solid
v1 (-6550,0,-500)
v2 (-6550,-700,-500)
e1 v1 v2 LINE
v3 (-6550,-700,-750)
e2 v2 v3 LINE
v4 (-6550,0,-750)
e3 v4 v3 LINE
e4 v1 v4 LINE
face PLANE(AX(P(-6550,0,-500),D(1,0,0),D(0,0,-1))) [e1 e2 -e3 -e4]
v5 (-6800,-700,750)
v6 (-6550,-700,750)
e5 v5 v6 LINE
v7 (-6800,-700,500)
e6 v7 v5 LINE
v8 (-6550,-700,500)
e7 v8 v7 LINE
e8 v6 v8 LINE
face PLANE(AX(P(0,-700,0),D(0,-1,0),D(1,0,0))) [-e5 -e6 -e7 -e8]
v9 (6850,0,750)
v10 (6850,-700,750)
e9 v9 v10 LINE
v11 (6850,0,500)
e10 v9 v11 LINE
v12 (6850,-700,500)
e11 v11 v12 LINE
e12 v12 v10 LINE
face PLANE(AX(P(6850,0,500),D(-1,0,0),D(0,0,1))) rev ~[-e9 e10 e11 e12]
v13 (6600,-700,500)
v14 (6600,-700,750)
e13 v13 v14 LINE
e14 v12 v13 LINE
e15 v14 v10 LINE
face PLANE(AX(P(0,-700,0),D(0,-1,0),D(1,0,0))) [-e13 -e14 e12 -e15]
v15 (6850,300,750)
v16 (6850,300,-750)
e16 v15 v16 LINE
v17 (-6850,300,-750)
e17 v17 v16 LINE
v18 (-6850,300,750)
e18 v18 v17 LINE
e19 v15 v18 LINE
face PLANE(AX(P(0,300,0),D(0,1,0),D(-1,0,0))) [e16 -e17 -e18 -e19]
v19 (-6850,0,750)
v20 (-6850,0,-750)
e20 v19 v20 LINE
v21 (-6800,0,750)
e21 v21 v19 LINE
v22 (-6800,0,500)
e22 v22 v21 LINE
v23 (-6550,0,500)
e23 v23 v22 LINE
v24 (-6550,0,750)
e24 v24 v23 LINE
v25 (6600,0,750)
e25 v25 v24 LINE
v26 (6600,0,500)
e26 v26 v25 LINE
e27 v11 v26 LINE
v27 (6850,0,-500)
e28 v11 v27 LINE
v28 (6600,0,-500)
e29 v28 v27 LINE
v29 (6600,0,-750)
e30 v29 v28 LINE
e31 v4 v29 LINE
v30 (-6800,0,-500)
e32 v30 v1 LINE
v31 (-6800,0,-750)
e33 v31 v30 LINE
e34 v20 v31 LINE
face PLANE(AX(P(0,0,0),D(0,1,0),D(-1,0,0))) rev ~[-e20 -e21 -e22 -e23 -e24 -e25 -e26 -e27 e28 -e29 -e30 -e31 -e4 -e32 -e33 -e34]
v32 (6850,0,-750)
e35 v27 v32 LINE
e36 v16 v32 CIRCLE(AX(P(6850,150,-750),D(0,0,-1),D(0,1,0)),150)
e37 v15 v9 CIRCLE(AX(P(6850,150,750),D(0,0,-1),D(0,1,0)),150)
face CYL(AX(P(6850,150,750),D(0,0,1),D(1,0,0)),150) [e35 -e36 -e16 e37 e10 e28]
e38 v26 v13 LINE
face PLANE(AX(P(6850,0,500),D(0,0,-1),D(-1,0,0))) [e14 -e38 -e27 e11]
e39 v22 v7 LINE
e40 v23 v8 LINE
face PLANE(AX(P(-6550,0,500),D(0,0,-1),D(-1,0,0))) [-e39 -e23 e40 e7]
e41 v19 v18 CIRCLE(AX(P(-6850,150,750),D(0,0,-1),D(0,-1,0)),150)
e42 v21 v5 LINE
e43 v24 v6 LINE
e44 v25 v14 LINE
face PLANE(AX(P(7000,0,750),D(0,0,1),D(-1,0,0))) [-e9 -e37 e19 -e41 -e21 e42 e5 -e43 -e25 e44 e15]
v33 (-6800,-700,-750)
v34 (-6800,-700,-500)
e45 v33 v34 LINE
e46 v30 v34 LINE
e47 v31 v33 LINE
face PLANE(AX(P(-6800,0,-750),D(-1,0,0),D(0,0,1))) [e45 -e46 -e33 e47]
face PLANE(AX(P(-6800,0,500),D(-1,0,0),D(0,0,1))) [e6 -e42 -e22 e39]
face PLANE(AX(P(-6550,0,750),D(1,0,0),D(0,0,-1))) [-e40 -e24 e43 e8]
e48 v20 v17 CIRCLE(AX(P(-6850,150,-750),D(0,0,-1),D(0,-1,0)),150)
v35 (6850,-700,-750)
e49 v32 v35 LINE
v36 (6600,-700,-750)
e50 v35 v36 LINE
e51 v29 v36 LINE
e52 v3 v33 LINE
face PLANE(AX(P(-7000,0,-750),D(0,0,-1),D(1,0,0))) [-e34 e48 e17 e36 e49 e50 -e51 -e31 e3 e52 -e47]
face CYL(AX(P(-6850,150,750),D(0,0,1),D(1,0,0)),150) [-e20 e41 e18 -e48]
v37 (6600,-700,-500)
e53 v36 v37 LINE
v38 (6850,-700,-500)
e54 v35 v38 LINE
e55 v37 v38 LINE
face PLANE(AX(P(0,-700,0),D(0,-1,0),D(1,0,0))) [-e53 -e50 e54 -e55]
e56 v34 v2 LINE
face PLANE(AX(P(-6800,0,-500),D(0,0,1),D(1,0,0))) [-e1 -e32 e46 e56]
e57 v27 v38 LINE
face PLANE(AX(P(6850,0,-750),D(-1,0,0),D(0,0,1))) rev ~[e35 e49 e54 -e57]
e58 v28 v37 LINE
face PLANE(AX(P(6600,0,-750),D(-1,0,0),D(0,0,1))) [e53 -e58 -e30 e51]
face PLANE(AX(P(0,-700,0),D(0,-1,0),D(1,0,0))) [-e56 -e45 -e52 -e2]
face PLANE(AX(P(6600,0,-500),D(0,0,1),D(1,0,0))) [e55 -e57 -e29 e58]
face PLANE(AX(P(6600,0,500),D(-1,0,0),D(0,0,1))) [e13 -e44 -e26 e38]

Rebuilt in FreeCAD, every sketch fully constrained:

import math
import FreeCAD as App
import Part
import Sketcher

V = App.Vector
Q = App.Units.Quantity

doc = App.newDocument("Part")
params = doc.addObject("Spreadsheet::Sheet", "Params")
for row, (alias, value) in enumerate([
    ("sketch1_width", "14000 mm"),
    ("sketch1_height", "1500 mm"),
    ("pad1_length", "300 mm"),
    ("sketch2_radius", "150 mm"),
    ("sketch3_width", "250 mm"),
    ("pad2_length", "700 mm"),
], start=1):
    params.set(f"A{row}", alias)
    params.set(f"B{row}", "=" + value)
    params.setAlias(f"B{row}", alias)

body = doc.addObject("PartDesign::Body", "Body")

# Sketch on XZ plane
sketch1 = body.newObject("Sketcher::SketchObject", "Sketch")
sketch1.AttachmentSupport = (doc.getObject("XZ_Plane"), [""])
sketch1.MapMode = "FlatFace"
sketch1.addGeometry([
    Part.LineSegment(V(7000, -750, 0), V(-7000, -750, 0)),
    Part.LineSegment(V(-7000, -750, 0), V(-7000, 750, 0)),
    Part.LineSegment(V(-7000, 750, 0), V(7000, 750, 0)),
    Part.LineSegment(V(7000, 750, 0), V(7000, -750, 0)),
], False)
sketch1.addConstraint([
    Sketcher.Constraint("Coincident", 0, 2, 1, 1),
    Sketcher.Constraint("Coincident", 1, 2, 2, 1),
    Sketcher.Constraint("Coincident", 2, 2, 3, 1),
    Sketcher.Constraint("Coincident", 3, 2, 0, 1),
    Sketcher.Constraint("Horizontal", 0),
    Sketcher.Constraint("Vertical", 1),
    Sketcher.Constraint("Horizontal", 2),
    Sketcher.Constraint("Vertical", 3),
    Sketcher.Constraint("Symmetric", 0, 2, 2, 2, -1, 1),
    Sketcher.Constraint("DistanceX", 0, 2, 0, 1, Q("14000 mm")),
    Sketcher.Constraint("DistanceY", 1, 1, 1, 2, Q("1500 mm")),
])
sketch1.setExpression("Constraints[9]", "Params.sketch1_width")
sketch1.setExpression("Constraints[10]", "Params.sketch1_height")
pad1 = body.newObject("PartDesign::Pad", "Pad")
pad1.Profile = sketch1
pad1.setExpression("Length", "Params.pad1_length")
pad1.Reversed = True

# Sketch on XY plane
sketch2 = body.newObject("Sketcher::SketchObject", "Sketch001")
sketch2.AttachmentSupport = (doc.getObject("XY_Plane"), [""])
sketch2.MapMode = "FlatFace"
sketch2.AttachmentOffset = App.Placement(V(0, 0, 750), App.Rotation())
sketch2.addGeometry([
    Part.LineSegment(V(6850, 0, 0), V(7000, 0, 0)),  # 0
    Part.LineSegment(V(7000, 0, 0), V(7000, 150, 0)),  # 1
    Part.ArcOfCircle(Part.Circle(V(6850, 150, 0), V(0, 0, 1), 150), math.radians(-90), math.radians(0)),  # 2
    Part.ArcOfCircle(Part.Circle(V(6850, 150, 0), V(0, 0, 1), 150), math.radians(0), math.radians(90)),  # 3
    Part.LineSegment(V(7000, 150, 0), V(7000, 300, 0)),  # 4
    Part.LineSegment(V(7000, 300, 0), V(6850, 300, 0)),  # 5
    Part.LineSegment(V(-7000, 0, 0), V(-6850, 0, 0)),  # 6
    Part.ArcOfCircle(Part.Circle(V(-6850, 150, 0), V(0, 0, 1), 150), math.radians(180), math.radians(270)),  # 7
    Part.LineSegment(V(-7000, 150, 0), V(-7000, 0, 0)),  # 8
    Part.ArcOfCircle(Part.Circle(V(-6850, 150, 0), V(0, 0, 1), 150), math.radians(90), math.radians(180)),  # 9
    Part.LineSegment(V(-6850, 300, 0), V(-7000, 300, 0)),  # 10
    Part.LineSegment(V(-7000, 300, 0), V(-7000, 150, 0)),  # 11
], False)
sketch2.addConstraint([
    Sketcher.Constraint("Coincident", 0, 2, 1, 1),
    Sketcher.Constraint("Tangent", 1, 2, 2, 2),
    Sketcher.Constraint("Tangent", 2, 1, 0, 1),
    Sketcher.Constraint("Tangent", 3, 1, 4, 1),
    Sketcher.Constraint("Coincident", 4, 2, 5, 1),
    Sketcher.Constraint("Tangent", 5, 2, 3, 2),
    Sketcher.Constraint("Tangent", 6, 2, 7, 2),
    Sketcher.Constraint("Tangent", 7, 1, 8, 1),
    Sketcher.Constraint("Coincident", 8, 2, 6, 1),
    Sketcher.Constraint("Tangent", 9, 1, 10, 1),
    Sketcher.Constraint("Coincident", 10, 2, 11, 1),
    Sketcher.Constraint("Tangent", 11, 2, 9, 2),
    Sketcher.Constraint("Horizontal", 0),
    Sketcher.Constraint("Vertical", 1),
    Sketcher.Constraint("Vertical", 4),
    Sketcher.Constraint("Horizontal", 5),
    Sketcher.Constraint("Horizontal", 6),
    Sketcher.Constraint("Vertical", 8),
    Sketcher.Constraint("Horizontal", 10),
    Sketcher.Constraint("Vertical", 11),
    Sketcher.Constraint("Coincident", 3, 3, 2, 3),
    Sketcher.Constraint("Coincident", 9, 3, 7, 3),
    Sketcher.Constraint("Equal", 2, 3),
    Sketcher.Constraint("Equal", 3, 7),
    Sketcher.Constraint("Equal", 7, 9),
    Sketcher.Constraint("Symmetric", 2, 1, 6, 2, -1, 1),
    Sketcher.Constraint("PointOnObject", 0, 2, -1),
    Sketcher.Constraint("Radius", 2, Q("150 mm")),
    Sketcher.Constraint("DistanceX", -1, 1, 2, 3, Q("6850 mm")),
])
sketch2.setExpression("Constraints[27]", "Params.sketch2_radius")
pocket1 = body.newObject("PartDesign::Pocket", "Pocket")
pocket1.Profile = sketch2
pocket1.Type = "ThroughAll"

# Sketch on XZ plane
sketch3 = body.newObject("Sketcher::SketchObject", "Sketch002")
sketch3.AttachmentSupport = (doc.getObject("XZ_Plane"), [""])
sketch3.MapMode = "FlatFace"
sketch3.addGeometry([
    Part.LineSegment(V(-6550, 750, 0), V(-6800, 750, 0)),  # 0
    Part.LineSegment(V(-6800, 750, 0), V(-6800, 500, 0)),  # 1
    Part.LineSegment(V(-6800, 500, 0), V(-6550, 500, 0)),  # 2
    Part.LineSegment(V(-6550, 500, 0), V(-6550, 750, 0)),  # 3
    Part.LineSegment(V(-6800, -500, 0), V(-6800, -750, 0)),  # 4
    Part.LineSegment(V(-6800, -750, 0), V(-6550, -750, 0)),  # 5
    Part.LineSegment(V(-6550, -750, 0), V(-6550, -500, 0)),  # 6
    Part.LineSegment(V(-6550, -500, 0), V(-6800, -500, 0)),  # 7
    Part.LineSegment(V(6850, 750, 0), V(6600, 750, 0)),  # 8
    Part.LineSegment(V(6600, 750, 0), V(6600, 500, 0)),  # 9
    Part.LineSegment(V(6600, 500, 0), V(6850, 500, 0)),  # 10
    Part.LineSegment(V(6850, 500, 0), V(6850, 750, 0)),  # 11
    Part.LineSegment(V(6600, -500, 0), V(6600, -750, 0)),  # 12
    Part.LineSegment(V(6600, -750, 0), V(6850, -750, 0)),  # 13
    Part.LineSegment(V(6850, -750, 0), V(6850, -500, 0)),  # 14
    Part.LineSegment(V(6850, -500, 0), V(6600, -500, 0)),  # 15
], False)
sketch3.addConstraint([
    Sketcher.Constraint("Coincident", 0, 2, 1, 1),
    Sketcher.Constraint("Coincident", 1, 2, 2, 1),
    Sketcher.Constraint("Coincident", 2, 2, 3, 1),
    Sketcher.Constraint("Coincident", 3, 2, 0, 1),
    Sketcher.Constraint("Coincident", 4, 2, 5, 1),
    Sketcher.Constraint("Coincident", 5, 2, 6, 1),
    Sketcher.Constraint("Coincident", 6, 2, 7, 1),
    Sketcher.Constraint("Coincident", 7, 2, 4, 1),
    Sketcher.Constraint("Coincident", 8, 2, 9, 1),
    Sketcher.Constraint("Coincident", 9, 2, 10, 1),
    Sketcher.Constraint("Coincident", 10, 2, 11, 1),
    Sketcher.Constraint("Coincident", 11, 2, 8, 1),
    Sketcher.Constraint("Coincident", 12, 2, 13, 1),
    Sketcher.Constraint("Coincident", 13, 2, 14, 1),
    Sketcher.Constraint("Coincident", 14, 2, 15, 1),
    Sketcher.Constraint("Coincident", 15, 2, 12, 1),
    Sketcher.Constraint("Horizontal", 0),
    Sketcher.Constraint("Vertical", 1),
    Sketcher.Constraint("Horizontal", 2),
    Sketcher.Constraint("Vertical", 3),
    Sketcher.Constraint("Vertical", 4),
    Sketcher.Constraint("Horizontal", 5),
    Sketcher.Constraint("Vertical", 6),
    Sketcher.Constraint("Horizontal", 7),
    Sketcher.Constraint("Horizontal", 8),
    Sketcher.Constraint("Vertical", 9),
    Sketcher.Constraint("Horizontal", 10),
    Sketcher.Constraint("Vertical", 11),
    Sketcher.Constraint("Vertical", 12),
    Sketcher.Constraint("Horizontal", 13),
    Sketcher.Constraint("Vertical", 14),
    Sketcher.Constraint("Horizontal", 15),
    Sketcher.Constraint("Symmetric", 0, 2, 4, 2, -1),
    Sketcher.Constraint("Symmetric", 2, 2, 6, 2, -1),
    Sketcher.Constraint("Symmetric", 8, 2, 12, 2, -1),
    Sketcher.Constraint("Symmetric", 10, 2, 14, 2, -1),
    Sketcher.Constraint("Horizontal", 3, 2, 8, 2),
    Sketcher.Constraint("Horizontal", 2, 2, 9, 2),
    Sketcher.Constraint("Equal", 7, 8),
    Sketcher.Constraint("Equal", 15, 1),
    Sketcher.Constraint("DistanceX", 0, 2, 0, 1, Q("250 mm")),
    Sketcher.Constraint("DistanceY", 4, 2, 1, 2, Q("1250 mm")),
    Sketcher.Constraint("DistanceX", 0, 2, 8, 2, Q("13400 mm")),
    Sketcher.Constraint("DistanceX", 0, 2, -1, 1, Q("6800 mm")),
])
sketch3.setExpression("Constraints[40]", "Params.sketch3_width")
pad2 = body.newObject("PartDesign::Pad", "Pad001")
pad2.Profile = sketch3
pad2.setExpression("Length", "Params.pad2_length")

doc.recompute()
